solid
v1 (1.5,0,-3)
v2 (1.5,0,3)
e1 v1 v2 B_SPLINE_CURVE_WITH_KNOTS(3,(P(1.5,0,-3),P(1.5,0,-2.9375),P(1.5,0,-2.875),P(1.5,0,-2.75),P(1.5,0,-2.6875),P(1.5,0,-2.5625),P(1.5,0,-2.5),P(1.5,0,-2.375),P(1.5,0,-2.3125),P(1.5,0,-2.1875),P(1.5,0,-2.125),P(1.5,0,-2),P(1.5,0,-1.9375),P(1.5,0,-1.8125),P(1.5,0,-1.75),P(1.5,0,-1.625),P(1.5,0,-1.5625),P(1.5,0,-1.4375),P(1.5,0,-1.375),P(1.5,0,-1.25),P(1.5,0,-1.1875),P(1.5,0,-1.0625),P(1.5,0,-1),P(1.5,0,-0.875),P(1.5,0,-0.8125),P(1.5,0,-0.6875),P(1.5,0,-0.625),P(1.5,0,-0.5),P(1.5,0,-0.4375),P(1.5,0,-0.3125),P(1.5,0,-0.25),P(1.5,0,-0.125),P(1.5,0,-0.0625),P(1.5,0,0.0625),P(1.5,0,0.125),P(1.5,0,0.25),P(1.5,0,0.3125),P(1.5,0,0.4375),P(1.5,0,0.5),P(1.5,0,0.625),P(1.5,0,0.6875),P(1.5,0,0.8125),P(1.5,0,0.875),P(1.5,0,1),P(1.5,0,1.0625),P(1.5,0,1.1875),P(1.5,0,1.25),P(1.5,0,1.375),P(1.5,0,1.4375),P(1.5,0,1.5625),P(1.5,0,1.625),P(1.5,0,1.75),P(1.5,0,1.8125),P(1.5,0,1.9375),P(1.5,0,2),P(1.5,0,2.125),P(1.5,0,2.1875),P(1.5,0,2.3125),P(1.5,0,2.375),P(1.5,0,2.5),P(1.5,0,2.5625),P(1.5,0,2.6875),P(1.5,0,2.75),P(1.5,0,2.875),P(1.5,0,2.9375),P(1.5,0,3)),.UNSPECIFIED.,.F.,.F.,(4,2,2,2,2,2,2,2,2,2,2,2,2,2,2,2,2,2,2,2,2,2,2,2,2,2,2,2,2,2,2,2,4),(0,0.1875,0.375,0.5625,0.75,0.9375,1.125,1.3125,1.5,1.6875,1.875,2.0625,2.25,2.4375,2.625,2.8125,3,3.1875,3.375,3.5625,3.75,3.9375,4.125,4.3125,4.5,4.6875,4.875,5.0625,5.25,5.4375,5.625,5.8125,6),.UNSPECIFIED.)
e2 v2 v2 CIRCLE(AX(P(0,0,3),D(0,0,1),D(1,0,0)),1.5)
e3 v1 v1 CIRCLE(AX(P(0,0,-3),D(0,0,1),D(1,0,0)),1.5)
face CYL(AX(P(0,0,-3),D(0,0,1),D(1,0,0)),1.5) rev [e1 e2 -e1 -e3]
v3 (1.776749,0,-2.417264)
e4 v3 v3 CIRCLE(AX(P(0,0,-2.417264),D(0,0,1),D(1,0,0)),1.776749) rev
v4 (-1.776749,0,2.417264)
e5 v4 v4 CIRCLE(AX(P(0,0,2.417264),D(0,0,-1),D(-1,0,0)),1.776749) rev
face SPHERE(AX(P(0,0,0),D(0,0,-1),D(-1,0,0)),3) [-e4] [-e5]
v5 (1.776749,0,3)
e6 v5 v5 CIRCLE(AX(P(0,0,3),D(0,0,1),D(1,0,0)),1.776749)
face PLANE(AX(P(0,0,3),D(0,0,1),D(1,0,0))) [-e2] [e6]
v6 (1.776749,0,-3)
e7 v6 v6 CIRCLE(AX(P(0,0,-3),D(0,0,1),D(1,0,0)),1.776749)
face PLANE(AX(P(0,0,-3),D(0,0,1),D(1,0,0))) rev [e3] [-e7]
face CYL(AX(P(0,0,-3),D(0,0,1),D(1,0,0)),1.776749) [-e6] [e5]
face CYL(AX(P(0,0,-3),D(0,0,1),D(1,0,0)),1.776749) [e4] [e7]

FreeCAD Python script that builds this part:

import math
import FreeCAD as App
import Part
import Sketcher
from FreeCAD import Vector

doc = App.newDocument("Part")
body = doc.addObject("PartDesign::Body", "Body")

sketch1 = body.newObject("Sketcher::SketchObject", "Sketch")
sketch1.AttachmentSupport = (doc.getObject("XY_Plane"), [""])
sketch1.MapMode = "FlatFace"
sketch1.addGeometry([
    Part.LineSegment(Vector(0, -3, 0), Vector(0, 3, 0)),
    Part.ArcOfCircle(Part.Circle(Vector(0, 0, 0), Vector(0, 0, 1), 3), math.radians(90), math.radians(270)),
], False)
sketch1.addConstraint([
    Sketcher.Constraint("Coincident", 0, 1, 1, 2),
    Sketcher.Constraint("Coincident", 1, 1, 0, 2),
    Sketcher.Constraint("Vertical", 0),
    Sketcher.Constraint("Coincident", 1, 3, -1, 1),
    Sketcher.Constraint("PointOnObject", 0, 1, -2),
    Sketcher.Constraint("Radius", 1, 3.0),
])
revolution = body.newObject("PartDesign::Revolution", "Revolution")
revolution.Profile = sketch1
revolution.ReferenceAxis = (sketch1, ["V_Axis"])
revolution.Angle = 360

sketch2 = body.newObject("Sketcher::SketchObject", "Sketch001")
sketch2.AttachmentSupport = (doc.getObject("XY_Plane"), [""])
sketch2.MapMode = "FlatFace"
sketch2.addGeometry(Part.Circle(Vector(0, 0, 0), Vector(0, 0, 1), 1.5), False)
sketch2.addConstraint([
    Sketcher.Constraint("Coincident", 0, 3, -1, 1),
    Sketcher.Constraint("Diameter", 0, 3.0),
])
pocket1 = body.newObject("PartDesign::Pocket", "Pocket")
pocket1.Profile = sketch2
pocket1.Type = "ThroughAll"
pocket1.Midplane = True

sketch3 = body.newObject("Sketcher::SketchObject", "Sketch002")
sketch3.AttachmentSupport = (doc.getObject("XY_Plane"), [""])
sketch3.MapMode = "FlatFace"
sketch3.addGeometry([
    Part.Circle(Vector(0, 0, 0), Vector(0, 0, 1), 1.8),
    Part.Circle(Vector(0, 0, 0), Vector(0, 0, 1), 1.5),
], False)
sketch3.addConstraint([
    Sketcher.Constraint("Coincident", 0, 3, -1, 1),
    Sketcher.Constraint("Coincident", 1, 3, -1, 1),
    Sketcher.Constraint("Diameter", 1, 3.0),
    Sketcher.Constraint("Diameter", 0, 3.553497),
])
pad1 = body.newObject("PartDesign::Pad", "Pad")
pad1.Profile = sketch3
pad1.Type = "TwoLengths"
pad1.Length = 3
pad1.Length2 = 3

doc.recompute()
